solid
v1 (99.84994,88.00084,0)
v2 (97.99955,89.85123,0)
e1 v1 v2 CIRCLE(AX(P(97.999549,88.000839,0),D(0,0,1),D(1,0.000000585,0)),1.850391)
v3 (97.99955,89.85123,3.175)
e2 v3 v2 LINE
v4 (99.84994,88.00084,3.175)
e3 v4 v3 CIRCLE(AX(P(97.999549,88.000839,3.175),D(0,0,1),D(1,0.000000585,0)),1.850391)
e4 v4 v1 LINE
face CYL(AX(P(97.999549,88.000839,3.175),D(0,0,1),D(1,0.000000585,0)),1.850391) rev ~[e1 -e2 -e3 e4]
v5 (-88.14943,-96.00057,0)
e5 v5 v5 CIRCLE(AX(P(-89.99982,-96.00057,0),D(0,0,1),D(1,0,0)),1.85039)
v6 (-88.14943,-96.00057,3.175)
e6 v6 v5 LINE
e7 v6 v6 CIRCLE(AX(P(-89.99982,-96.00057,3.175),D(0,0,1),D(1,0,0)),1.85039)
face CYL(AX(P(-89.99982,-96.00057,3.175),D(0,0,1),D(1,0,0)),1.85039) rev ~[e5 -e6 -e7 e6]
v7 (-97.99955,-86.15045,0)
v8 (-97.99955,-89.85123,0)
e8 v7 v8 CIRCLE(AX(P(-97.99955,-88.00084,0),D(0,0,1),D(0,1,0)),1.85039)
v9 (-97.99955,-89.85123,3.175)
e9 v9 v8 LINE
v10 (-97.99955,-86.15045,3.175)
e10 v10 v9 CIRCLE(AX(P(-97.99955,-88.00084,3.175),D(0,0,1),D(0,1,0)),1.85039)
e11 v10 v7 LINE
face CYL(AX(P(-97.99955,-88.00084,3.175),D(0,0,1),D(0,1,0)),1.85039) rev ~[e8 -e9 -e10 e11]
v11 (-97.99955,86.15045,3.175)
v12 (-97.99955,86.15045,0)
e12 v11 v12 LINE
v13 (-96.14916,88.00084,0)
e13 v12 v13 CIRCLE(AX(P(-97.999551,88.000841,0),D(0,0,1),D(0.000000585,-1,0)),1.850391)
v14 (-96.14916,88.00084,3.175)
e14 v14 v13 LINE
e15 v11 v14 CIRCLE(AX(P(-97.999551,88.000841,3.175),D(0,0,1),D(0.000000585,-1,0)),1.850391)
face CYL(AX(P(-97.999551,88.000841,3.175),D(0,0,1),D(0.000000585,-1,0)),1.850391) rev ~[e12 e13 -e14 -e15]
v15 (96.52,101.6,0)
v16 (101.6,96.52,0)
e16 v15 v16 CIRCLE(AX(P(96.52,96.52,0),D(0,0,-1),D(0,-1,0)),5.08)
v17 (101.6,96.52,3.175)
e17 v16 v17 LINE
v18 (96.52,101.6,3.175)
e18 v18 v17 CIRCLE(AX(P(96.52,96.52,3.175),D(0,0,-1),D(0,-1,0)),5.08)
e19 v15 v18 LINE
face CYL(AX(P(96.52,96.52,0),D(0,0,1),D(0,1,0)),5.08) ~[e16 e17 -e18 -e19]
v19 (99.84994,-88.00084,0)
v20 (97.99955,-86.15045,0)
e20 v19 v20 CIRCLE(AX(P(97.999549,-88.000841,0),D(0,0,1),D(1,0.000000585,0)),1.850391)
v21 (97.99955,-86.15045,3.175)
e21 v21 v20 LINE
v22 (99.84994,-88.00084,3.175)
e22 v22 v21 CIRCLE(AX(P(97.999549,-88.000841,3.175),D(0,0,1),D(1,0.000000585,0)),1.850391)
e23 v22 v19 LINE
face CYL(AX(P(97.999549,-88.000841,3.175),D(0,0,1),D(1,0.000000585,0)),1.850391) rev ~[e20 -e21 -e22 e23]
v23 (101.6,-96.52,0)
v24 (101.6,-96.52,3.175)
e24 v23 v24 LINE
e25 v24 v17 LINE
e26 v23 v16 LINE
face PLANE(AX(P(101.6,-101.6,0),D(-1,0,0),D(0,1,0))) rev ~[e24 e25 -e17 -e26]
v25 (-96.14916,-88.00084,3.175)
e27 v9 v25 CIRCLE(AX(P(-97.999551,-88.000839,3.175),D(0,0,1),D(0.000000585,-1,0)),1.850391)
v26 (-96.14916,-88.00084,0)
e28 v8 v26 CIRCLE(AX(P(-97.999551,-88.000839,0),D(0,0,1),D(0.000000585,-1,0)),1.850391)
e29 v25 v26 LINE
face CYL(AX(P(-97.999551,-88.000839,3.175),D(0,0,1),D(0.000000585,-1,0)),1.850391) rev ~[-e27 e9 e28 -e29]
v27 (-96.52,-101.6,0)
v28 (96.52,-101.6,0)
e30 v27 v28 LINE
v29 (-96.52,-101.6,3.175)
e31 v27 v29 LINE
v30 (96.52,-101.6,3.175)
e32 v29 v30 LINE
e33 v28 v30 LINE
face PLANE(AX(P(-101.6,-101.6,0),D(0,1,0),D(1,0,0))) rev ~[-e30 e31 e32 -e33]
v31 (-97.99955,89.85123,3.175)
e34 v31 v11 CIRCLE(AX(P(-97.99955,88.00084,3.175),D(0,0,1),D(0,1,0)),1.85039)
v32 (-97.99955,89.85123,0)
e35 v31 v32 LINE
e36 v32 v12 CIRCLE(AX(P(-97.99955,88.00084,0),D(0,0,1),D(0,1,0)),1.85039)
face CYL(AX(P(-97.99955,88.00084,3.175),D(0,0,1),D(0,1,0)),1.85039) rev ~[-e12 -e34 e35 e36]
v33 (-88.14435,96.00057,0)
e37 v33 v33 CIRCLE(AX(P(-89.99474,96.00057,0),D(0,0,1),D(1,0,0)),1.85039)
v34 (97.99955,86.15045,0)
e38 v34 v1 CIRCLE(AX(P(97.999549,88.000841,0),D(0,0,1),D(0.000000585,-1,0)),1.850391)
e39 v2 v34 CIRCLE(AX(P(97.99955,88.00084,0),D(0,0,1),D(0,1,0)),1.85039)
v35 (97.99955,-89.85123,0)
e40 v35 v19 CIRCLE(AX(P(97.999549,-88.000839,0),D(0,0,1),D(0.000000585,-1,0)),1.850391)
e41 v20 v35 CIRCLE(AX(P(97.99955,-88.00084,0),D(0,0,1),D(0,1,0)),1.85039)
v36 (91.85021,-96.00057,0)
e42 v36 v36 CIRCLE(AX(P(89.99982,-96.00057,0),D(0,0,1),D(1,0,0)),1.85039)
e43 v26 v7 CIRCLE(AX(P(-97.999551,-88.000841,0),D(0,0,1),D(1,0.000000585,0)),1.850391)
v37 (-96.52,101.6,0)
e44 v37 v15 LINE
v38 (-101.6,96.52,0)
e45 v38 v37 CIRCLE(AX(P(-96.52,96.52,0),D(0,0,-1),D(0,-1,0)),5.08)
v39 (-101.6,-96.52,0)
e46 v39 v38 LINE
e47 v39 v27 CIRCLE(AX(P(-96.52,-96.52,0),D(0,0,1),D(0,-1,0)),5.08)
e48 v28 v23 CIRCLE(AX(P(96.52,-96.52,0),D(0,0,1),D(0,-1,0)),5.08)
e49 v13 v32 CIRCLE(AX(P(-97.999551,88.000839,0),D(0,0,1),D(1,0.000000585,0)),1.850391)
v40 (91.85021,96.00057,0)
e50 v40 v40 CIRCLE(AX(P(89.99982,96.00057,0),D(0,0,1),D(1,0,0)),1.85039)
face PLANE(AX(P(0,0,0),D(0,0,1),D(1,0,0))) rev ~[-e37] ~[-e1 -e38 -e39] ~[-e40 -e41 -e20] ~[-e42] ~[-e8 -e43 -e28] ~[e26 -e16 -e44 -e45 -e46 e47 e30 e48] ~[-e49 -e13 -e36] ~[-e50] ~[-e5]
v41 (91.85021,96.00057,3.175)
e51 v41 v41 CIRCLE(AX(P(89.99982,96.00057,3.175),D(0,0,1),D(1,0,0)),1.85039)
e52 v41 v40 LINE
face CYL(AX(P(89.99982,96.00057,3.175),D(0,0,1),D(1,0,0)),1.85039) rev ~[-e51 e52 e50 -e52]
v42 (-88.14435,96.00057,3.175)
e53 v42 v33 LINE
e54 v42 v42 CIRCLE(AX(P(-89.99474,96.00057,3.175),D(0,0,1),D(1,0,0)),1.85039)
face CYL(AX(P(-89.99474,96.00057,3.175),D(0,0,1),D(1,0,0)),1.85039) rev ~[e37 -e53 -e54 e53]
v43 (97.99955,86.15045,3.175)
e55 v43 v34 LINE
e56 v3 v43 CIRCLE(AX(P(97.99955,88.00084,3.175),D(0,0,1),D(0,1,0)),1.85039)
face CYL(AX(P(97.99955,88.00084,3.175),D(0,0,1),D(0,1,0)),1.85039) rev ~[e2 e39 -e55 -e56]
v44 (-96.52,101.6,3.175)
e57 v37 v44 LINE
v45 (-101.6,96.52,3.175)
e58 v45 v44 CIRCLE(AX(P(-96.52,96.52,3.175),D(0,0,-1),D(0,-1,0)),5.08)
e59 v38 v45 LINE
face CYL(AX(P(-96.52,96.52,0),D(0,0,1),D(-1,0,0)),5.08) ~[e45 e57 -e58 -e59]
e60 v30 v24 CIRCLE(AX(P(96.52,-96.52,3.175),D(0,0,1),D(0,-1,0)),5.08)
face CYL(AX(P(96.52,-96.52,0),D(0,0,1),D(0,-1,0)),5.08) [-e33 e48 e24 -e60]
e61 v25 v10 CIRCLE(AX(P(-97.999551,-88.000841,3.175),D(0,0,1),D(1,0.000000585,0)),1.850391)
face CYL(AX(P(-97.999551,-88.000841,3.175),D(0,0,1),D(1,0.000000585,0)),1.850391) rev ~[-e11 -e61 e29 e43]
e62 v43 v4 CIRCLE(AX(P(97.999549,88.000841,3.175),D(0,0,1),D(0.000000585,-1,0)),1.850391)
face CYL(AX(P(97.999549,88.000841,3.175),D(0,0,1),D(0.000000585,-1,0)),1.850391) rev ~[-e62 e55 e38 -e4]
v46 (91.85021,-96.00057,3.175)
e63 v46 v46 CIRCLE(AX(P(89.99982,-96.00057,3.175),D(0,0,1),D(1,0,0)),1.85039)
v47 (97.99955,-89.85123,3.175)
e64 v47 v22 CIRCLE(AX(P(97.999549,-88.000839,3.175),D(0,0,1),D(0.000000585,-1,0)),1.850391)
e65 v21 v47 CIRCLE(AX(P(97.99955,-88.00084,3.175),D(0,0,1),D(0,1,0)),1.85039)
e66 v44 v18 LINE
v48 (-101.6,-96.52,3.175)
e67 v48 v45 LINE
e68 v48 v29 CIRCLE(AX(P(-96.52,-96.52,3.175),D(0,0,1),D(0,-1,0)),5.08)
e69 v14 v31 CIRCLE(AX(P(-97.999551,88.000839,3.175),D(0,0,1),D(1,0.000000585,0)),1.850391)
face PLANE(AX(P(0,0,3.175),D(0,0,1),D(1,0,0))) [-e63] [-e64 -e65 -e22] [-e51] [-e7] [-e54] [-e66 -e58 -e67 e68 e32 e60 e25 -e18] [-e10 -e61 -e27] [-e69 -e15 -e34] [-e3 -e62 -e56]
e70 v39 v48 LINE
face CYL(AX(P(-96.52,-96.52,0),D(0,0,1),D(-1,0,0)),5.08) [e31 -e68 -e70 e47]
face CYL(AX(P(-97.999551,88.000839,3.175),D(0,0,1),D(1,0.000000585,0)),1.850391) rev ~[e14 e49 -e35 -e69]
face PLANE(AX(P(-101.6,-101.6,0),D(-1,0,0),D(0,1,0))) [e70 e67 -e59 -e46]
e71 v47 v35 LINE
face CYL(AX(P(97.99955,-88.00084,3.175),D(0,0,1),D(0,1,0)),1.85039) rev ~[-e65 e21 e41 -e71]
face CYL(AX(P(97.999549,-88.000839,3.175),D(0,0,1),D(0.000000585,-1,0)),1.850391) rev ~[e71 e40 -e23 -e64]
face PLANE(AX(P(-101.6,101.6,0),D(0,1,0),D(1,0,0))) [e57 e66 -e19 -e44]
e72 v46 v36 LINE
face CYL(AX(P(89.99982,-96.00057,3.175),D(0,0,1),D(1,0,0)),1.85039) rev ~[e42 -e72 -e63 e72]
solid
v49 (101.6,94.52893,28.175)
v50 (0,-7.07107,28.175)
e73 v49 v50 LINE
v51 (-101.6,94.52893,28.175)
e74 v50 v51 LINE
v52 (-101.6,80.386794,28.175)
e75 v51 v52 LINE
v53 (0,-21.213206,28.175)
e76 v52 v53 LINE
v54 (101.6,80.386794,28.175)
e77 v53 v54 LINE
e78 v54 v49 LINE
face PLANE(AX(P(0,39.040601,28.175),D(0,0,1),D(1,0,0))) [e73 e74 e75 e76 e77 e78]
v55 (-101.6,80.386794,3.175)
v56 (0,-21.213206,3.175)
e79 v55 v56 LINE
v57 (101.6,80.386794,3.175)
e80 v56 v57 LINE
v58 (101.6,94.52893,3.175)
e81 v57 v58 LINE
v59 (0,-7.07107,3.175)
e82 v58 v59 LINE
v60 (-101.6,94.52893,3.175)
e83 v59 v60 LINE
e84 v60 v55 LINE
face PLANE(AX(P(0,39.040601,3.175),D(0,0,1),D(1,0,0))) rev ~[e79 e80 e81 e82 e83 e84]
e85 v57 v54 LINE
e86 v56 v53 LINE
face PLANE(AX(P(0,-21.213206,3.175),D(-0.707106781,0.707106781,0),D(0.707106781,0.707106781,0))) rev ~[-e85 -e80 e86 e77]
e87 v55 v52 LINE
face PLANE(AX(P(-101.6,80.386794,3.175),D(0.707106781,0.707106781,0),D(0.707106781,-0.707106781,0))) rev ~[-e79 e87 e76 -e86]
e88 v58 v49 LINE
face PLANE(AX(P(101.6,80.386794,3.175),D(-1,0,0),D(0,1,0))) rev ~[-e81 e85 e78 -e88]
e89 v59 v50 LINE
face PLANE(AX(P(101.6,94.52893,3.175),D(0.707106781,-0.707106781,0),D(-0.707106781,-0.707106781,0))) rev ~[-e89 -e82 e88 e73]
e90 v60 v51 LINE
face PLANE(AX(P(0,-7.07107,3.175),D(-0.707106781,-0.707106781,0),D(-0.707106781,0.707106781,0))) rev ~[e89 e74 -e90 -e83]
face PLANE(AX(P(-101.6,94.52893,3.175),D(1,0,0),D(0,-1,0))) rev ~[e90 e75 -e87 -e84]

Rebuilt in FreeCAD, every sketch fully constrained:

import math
import FreeCAD as App
import Part
import Sketcher
Q = App.Units.Quantity


def edges_at(feature, points):
    """Names of the edges that pass closest to the given points."""
    edges = feature.Shape.Edges
    near = lambda p: min(range(len(edges)), key=lambda i: edges[i].distToShape(Part.Vertex(*p))[0])
    return sorted({f"Edge{near(p) + 1}" for p in points})


def add_polygon(sketch, points):
    """Adds a closed chain of lines whose ends are joined by coincident constraints."""
    first, n = sketch.GeometryCount, len(points)
    for a, b in zip(points, points[1:] + points[:1]):
        sketch.addGeometry(Part.LineSegment(App.Vector(*a, 0), App.Vector(*b, 0)), False)
    for i in range(n):
        sketch.addConstraint(Sketcher.Constraint("Coincident", first + i, 2, first + (i + 1) % n, 1))

doc = App.newDocument("Part")
body = doc.addObject("PartDesign::Body", "Body")

# Sketch on XY plane
sketch1 = doc.addObject("Sketcher::SketchObject", "Sketch")
body.addObject(sketch1)
sketch1.AttachmentSupport = (doc.XY_Plane, [""])
sketch1.MapMode = "FlatFace"
add_polygon(sketch1, [(-102, 102), (-102, -102), (102, -102), (102, 102)])  # lines 0-3
sketch1.addConstraint([
    Sketcher.Constraint("Vertical", 0),
    Sketcher.Constraint("Horizontal", 1),
    Sketcher.Constraint("Vertical", 2),
    Sketcher.Constraint("Horizontal", 3),
    Sketcher.Constraint("Symmetric", 0, 2, 2, 2, -1, 1),
    Sketcher.Constraint("Equal", 3, 0),
    Sketcher.Constraint("DistanceX", 1, 1, 1, 2, Q("8 in")),
])
pad1 = doc.addObject("PartDesign::Pad", "Pad")
body.addObject(pad1)
pad1.Profile = sketch1
pad1.Length = Q("0.125 in")

# Sketch on XY plane
sketch2 = doc.addObject("Sketcher::SketchObject", "Sketch001")
body.addObject(sketch2)
sketch2.AttachmentSupport = (doc.XY_Plane, [""])
sketch2.MapMode = "FlatFace"
sketch2.AttachmentOffset = App.Placement(App.Vector(0, 0, 0.125 * 25.4), App.Rotation())
sketch2.addGeometry([
    Part.ArcOfCircle(Part.Circle(App.Vector(98, 88, 0), App.Vector(0, 0, 1), 1.9), math.radians(90), math.radians(270)),  # 0
    Part.ArcOfCircle(Part.Circle(App.Vector(98, 88, 0), App.Vector(0, 0, 1), 1.9), math.radians(-90), math.radians(0)),  # 1
    Part.ArcOfCircle(Part.Circle(App.Vector(98, 88, 0), App.Vector(0, 0, 1), 1.9), math.radians(0), math.radians(90)),  # 2
    Part.ArcOfCircle(Part.Circle(App.Vector(98, -88, 0), App.Vector(0, 0, 1), 1.9), math.radians(0), math.radians(90)),  # 3
    Part.ArcOfCircle(Part.Circle(App.Vector(98, -88, 0), App.Vector(0, 0, 1), 1.9), math.radians(90), math.radians(270)),  # 4
    Part.ArcOfCircle(Part.Circle(App.Vector(98, -88, 0), App.Vector(0, 0, 1), 1.9), math.radians(-90), math.radians(0)),  # 5
    Part.ArcOfCircle(Part.Circle(App.Vector(-98, -88, 0), App.Vector(0, 0, 1), 1.9), math.radians(0), math.radians(90)),  # 6
    Part.ArcOfCircle(Part.Circle(App.Vector(-98, -88, 0), App.Vector(0, 0, 1), 1.9), math.radians(90), math.radians(270)),  # 7
    Part.ArcOfCircle(Part.Circle(App.Vector(-98, -88, 0), App.Vector(0, 0, 1), 1.9), math.radians(-90), math.radians(0)),  # 8
    Part.ArcOfCircle(Part.Circle(App.Vector(-98, 88, 0), App.Vector(0, 0, 1), 1.9), math.radians(90), math.radians(270)),  # 9
    Part.ArcOfCircle(Part.Circle(App.Vector(-98, 88, 0), App.Vector(0, 0, 1), 1.9), math.radians(-90), math.radians(0)),  # 10
    Part.ArcOfCircle(Part.Circle(App.Vector(-98, 88, 0), App.Vector(0, 0, 1), 1.9), math.radians(0), math.radians(90)),  # 11
    Part.Circle(App.Vector(-90, 96, 0), App.Vector(0, 0, 1), 1.9),  # 12
    Part.Circle(App.Vector(90, 96, 0), App.Vector(0, 0, 1), 1.9),  # 13
    Part.Circle(App.Vector(90, -96, 0), App.Vector(0, 0, 1), 1.9),  # 14
    Part.Circle(App.Vector(-90, -96, 0), App.Vector(0, 0, 1), 1.9),  # 15
], False)
sketch2.addConstraint([
    Sketcher.Constraint("Tangent", 0, 2, 1, 1),
    Sketcher.Constraint("Tangent", 1, 2, 2, 1),
    Sketcher.Constraint("Tangent", 2, 2, 0, 1),
    Sketcher.Constraint("Tangent", 3, 2, 4, 1),
    Sketcher.Constraint("Tangent", 4, 2, 5, 1),
    Sketcher.Constraint("Tangent", 5, 2, 3, 1),
    Sketcher.Constraint("Tangent", 6, 2, 7, 1),
    Sketcher.Constraint("Tangent", 7, 2, 8, 1),
    Sketcher.Constraint("Tangent", 8, 2, 6, 1),
    Sketcher.Constraint("Tangent", 9, 2, 10, 1),
    Sketcher.Constraint("Tangent", 10, 2, 11, 1),
    Sketcher.Constraint("Tangent", 11, 2, 9, 1),
    Sketcher.Constraint("Equal", 2, 3),
    Sketcher.Constraint("Equal", 5, 6),
    Sketcher.Constraint("Equal", 8, 9),
    Sketcher.Constraint("Equal", 11, 12),
    Sketcher.Constraint("Equal", 12, 13),
    Sketcher.Constraint("Equal", 13, 14),
    Sketcher.Constraint("Equal", 14, 15),
    Sketcher.Constraint("Symmetric", 0, 3, 6, 3, -1, 1),
    Sketcher.Constraint("Symmetric", 3, 3, 9, 3, -1, 1),
    Sketcher.Constraint("Symmetric", 13, 3, 15, 3, -1, 1),
    Sketcher.Constraint("Symmetric", 3, 3, 6, 3, -2),
    Sketcher.Constraint("Symmetric", 14, 3, 15, 3, -2),
    Sketcher.Constraint("Horizontal", 12, 3, 13, 3),
    Sketcher.Constraint("Horizontal", 11, 3, 1, 2),
    Sketcher.Constraint("Horizontal", 8, 3, 5, 2),
    Sketcher.Constraint("Horizontal", 5, 2, 8, 2),
    Sketcher.Constraint("Horizontal", 1, 2, 10, 2),
    Sketcher.Constraint("Vertical", 5, 3, 0, 2),
    Sketcher.Constraint("Vertical", 0, 2, 2, 2),
    Sketcher.Constraint("Vertical", 2, 2, 3, 2),
    Sketcher.Constraint("Vertical", 3, 2, 4, 2),
    Sketcher.Constraint("Vertical", 11, 3, 6, 2),
    Sketcher.Constraint("Vertical", 6, 2, 7, 2),
    Sketcher.Constraint("Vertical", 7, 2, 9, 2),
    Sketcher.Constraint("Vertical", 9, 2, 11, 2),
    Sketcher.Constraint("Diameter", 12, Q("0.1457 in")),
    Sketcher.Constraint("DistanceY", -1, 1, 0, 3, Q("3.4646 in")),
    Sketcher.Constraint("DistanceX", 12, 3, -1, 1, Q("3.5431 in")),
    Sketcher.Constraint("DistanceX", -1, 1, 13, 3, Q("3.5433 in")),
    Sketcher.Constraint("DistanceX", -1, 1, 1, 2, Q("3.9311 in")),
    Sketcher.Constraint("DistanceY", 0, 2, 13, 3, Q("0.3878 in")),
])
pocket1 = doc.addObject("PartDesign::Pocket", "Pocket")
body.addObject(pocket1)
pocket1.Profile = sketch2
pocket1.Length = Q("1 in")
doc.recompute()

fillet = doc.addObject("PartDesign::Fillet", "Fillet")
body.addObject(fillet)
fillet.Base = (pocket1, edges_at(pocket1, [(-101.6, 101.6, 1.587)]))
fillet.Radius = Q("0.2 in")
doc.recompute()

fillet2 = doc.addObject("PartDesign::Fillet", "Fillet001")
body.addObject(fillet2)
fillet2.Base = (fillet, edges_at(fillet, [(101.6, 101.6, 1.587), (101.6, -101.6, 1.587), (-101.6, -101.6, 1.587)]))
fillet2.Radius = Q("0.2 in")
body2 = doc.addObject("PartDesign::Body", "Body001")

# Sketch on XY plane
sketch3 = doc.addObject("Sketcher::SketchObject", "Sketch002")
body2.addObject(sketch3)
sketch3.AttachmentSupport = (doc.getObject("XY_Plane001"), [""])
sketch3.MapMode = "FlatFace"
sketch3.AttachmentOffset = App.Placement(App.Vector(0, 0, 0.125 * 25.4), App.Rotation())
add_polygon(sketch3, [(0, -7), (-102, 95), (-102, 80), (0, -21), (102, 80), (102, 95)])  # lines 0-5
sketch3.addConstraint([
    Sketcher.Constraint("Vertical", 1),
    Sketcher.Constraint("Vertical", 4),
    Sketcher.Constraint("Symmetric", 1, 2, 3, 2, -2),
    Sketcher.Constraint("PointOnObject", 2, 2, -2),
    Sketcher.Constraint("PointOnObject", 5, 2, -2),
    Sketcher.Constraint("Parallel", 0, 2),
    Sketcher.Constraint("Perpendicular", 2, 3),
    Sketcher.Constraint("Parallel", 3, 5),
    Sketcher.Constraint("DistanceX", 0, 2, -1, 1, Q("4 in")),
    Sketcher.Constraint("DistanceY", 1, 2, 1, 1, Q("14.142136 mm")),
    Sketcher.Constraint("DistanceY", -1, 1, 0, 2, Q("94.52893 mm")),
])
pad2 = doc.addObject("PartDesign::Pad", "Pad001")
body2.addObject(pad2)
pad2.Profile = sketch3
pad2.Length = 25

doc.recompute()
